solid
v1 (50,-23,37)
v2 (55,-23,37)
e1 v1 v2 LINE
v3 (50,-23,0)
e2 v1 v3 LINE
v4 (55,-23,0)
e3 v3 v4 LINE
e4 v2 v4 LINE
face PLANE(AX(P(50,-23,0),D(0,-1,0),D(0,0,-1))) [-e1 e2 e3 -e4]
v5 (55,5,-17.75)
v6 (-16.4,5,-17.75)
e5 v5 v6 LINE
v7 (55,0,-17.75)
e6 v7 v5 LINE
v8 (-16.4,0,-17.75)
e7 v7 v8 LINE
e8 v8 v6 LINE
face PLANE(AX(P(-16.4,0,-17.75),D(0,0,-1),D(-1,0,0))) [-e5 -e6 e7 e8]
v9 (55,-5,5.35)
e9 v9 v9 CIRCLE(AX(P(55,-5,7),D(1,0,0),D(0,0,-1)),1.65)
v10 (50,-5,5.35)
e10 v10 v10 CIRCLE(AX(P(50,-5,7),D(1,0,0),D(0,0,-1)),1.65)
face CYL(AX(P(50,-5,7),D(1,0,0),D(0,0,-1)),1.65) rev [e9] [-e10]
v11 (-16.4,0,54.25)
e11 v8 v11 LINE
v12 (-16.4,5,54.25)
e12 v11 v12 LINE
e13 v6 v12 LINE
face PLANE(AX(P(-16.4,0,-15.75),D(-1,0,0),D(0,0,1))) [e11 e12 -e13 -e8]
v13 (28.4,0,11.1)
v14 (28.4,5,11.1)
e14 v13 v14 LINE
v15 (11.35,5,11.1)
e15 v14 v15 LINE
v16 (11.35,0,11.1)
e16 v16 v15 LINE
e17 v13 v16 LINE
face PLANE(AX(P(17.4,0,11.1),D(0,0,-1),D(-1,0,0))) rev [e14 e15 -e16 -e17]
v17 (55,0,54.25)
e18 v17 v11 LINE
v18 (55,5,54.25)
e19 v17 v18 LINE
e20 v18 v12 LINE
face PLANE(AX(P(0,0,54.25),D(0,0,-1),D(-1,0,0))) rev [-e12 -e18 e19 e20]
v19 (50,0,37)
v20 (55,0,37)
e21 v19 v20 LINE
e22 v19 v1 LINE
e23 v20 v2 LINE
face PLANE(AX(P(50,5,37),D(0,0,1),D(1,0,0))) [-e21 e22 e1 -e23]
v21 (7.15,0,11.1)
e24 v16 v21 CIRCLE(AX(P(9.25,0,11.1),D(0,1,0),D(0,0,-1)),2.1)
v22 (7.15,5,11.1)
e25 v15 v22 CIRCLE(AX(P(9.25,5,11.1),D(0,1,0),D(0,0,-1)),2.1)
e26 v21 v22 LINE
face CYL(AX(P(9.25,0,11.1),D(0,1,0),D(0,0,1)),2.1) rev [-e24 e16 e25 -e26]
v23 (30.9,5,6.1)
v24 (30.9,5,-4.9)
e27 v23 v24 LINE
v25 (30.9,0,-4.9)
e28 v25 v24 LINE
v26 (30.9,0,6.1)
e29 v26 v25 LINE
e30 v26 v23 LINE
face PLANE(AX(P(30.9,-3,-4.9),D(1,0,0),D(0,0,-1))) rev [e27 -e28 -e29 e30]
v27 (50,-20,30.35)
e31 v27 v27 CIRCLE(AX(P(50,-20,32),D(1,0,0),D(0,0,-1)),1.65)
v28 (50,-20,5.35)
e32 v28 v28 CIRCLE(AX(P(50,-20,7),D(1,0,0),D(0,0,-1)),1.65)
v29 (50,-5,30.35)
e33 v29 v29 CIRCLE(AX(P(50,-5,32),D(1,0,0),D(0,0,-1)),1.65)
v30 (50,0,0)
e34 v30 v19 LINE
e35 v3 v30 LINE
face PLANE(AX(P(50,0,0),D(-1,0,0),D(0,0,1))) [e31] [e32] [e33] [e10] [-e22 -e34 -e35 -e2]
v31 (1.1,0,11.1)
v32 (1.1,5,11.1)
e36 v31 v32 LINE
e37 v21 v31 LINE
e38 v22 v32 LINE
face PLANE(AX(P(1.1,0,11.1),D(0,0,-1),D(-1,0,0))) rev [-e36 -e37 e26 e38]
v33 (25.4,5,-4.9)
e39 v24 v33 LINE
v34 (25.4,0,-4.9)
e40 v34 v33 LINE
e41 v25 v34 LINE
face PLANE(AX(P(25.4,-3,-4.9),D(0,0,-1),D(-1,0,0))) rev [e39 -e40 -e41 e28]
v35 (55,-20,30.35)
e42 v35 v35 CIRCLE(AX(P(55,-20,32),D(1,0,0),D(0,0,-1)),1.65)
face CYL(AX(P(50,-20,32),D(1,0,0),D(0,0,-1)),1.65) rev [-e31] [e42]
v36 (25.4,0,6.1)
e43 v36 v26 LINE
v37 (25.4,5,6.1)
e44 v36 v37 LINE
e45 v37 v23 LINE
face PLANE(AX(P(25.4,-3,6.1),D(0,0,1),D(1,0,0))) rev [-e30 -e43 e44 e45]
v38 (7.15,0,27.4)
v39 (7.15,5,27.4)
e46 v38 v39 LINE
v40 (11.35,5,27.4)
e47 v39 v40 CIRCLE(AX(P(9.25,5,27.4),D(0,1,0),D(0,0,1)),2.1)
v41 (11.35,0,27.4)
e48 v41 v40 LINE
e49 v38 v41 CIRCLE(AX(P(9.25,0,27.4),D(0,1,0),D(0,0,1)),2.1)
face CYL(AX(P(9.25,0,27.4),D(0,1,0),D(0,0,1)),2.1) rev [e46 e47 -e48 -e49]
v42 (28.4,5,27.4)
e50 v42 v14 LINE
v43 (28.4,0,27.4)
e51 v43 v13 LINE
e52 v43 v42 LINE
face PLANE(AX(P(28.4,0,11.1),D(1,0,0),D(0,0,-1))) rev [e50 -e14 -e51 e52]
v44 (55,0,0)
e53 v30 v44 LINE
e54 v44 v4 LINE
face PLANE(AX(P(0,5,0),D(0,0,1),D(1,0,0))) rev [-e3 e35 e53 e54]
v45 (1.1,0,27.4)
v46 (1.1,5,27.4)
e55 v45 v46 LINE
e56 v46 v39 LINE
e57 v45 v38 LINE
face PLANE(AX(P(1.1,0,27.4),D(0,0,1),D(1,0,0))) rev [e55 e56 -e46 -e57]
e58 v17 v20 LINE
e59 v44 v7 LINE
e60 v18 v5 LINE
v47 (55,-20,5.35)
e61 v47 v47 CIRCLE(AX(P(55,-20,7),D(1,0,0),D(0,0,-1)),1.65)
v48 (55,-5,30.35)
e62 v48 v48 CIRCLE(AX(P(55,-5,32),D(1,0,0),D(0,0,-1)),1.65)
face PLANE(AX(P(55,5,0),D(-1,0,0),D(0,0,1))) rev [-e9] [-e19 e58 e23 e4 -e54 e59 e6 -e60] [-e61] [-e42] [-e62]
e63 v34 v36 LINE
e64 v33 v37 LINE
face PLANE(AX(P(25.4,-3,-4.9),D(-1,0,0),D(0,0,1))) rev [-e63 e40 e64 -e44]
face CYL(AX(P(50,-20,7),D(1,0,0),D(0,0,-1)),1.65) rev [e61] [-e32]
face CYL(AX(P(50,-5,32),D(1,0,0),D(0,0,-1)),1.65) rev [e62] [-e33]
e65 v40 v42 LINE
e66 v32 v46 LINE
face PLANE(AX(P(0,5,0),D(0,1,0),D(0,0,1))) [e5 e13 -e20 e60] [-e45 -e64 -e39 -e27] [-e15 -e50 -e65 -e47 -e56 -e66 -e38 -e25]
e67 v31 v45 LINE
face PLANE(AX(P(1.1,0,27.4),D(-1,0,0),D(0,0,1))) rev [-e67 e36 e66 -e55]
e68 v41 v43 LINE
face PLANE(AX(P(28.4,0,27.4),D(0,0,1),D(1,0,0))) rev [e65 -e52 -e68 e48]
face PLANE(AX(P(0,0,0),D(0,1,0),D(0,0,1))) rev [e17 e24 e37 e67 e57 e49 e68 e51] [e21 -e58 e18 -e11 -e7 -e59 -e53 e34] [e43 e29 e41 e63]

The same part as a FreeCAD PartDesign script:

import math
import FreeCAD as App
import Part
import Sketcher
from FreeCAD import Vector
Q = App.Units.Quantity


def add_polygon(sketch, points):
    """Adds a closed chain of lines whose ends are joined by coincident constraints."""
    first, n = sketch.GeometryCount, len(points)
    for a, b in zip(points, points[1:] + points[:1]):
        sketch.addGeometry(Part.LineSegment(App.Vector(*a, 0), App.Vector(*b, 0)), False)
    for i in range(n):
        sketch.addConstraint(Sketcher.Constraint("Coincident", first + i, 2, first + (i + 1) % n, 1))

doc = App.newDocument("Part")
body = doc.addObject("PartDesign::Body", "Body")

# Sketch on XZ plane
sketch1 = doc.addObject("Sketcher::SketchObject", "Sketch")
body.addObject(sketch1)
sketch1.AttachmentSupport = (doc.XZ_Plane, [""])
sketch1.MapMode = "FlatFace"
add_polygon(sketch1, [(0, 0), (0, 70), (55, 70), (55, 0)])  # lines 0-3
sketch1.addConstraint([
    Sketcher.Constraint("Vertical", 0),
    Sketcher.Constraint("Horizontal", 1),
    Sketcher.Constraint("Vertical", 2),
    Sketcher.Constraint("Horizontal", 3),
    Sketcher.Constraint("Coincident", 3, 2, -1, 1),
    Sketcher.Constraint("DistanceX", 1, 1, 1, 2, Q("55 mm")),
    Sketcher.Constraint("DistanceY", 0, 1, 0, 2, Q("70 mm")),
])
pad1 = doc.addObject("PartDesign::Pad", "Pad")
body.addObject(pad1)
pad1.Profile = sketch1
pad1.Length = 5
pad1.Reversed = True

# Sketch on YZ plane
sketch2 = doc.addObject("Sketcher::SketchObject", "Sketch001")
body.addObject(sketch2)
sketch2.AttachmentSupport = (doc.YZ_Plane, [""])
sketch2.MapMode = "FlatFace"
sketch2.AttachmentOffset = App.Placement(Vector(0, 0, 55), App.Rotation())
add_polygon(sketch2, [(5, 37), (-23, 37), (-23, 0), (5, 0)])  # lines 0-3
sketch2.addConstraint([
    Sketcher.Constraint("Horizontal", 0),
    Sketcher.Constraint("Vertical", 1),
    Sketcher.Constraint("Horizontal", 2),
    Sketcher.Constraint("Vertical", 3),
    Sketcher.Constraint("PointOnObject", 1, 2, -1),
    Sketcher.Constraint("DistanceX", 0, 2, 0, 1, Q("28 mm")),
    Sketcher.Constraint("DistanceY", 1, 2, 1, 1, Q("37 mm")),
    Sketcher.Constraint("DistanceX", 0, 2, -1, 1, Q("23 mm")),
])
pad2 = doc.addObject("PartDesign::Pad", "Pad001")
body.addObject(pad2)
pad2.Profile = sketch2
pad2.Length = 5
pad2.Reversed = True

# Sketch on YZ plane
sketch3 = doc.addObject("Sketcher::SketchObject", "Sketch002")
body.addObject(sketch3)
sketch3.AttachmentSupport = (doc.YZ_Plane, [""])
sketch3.MapMode = "FlatFace"
sketch3.AttachmentOffset = App.Placement(Vector(0, 0, 55), App.Rotation())
sketch3.addGeometry([
    Part.Circle(Vector(-5, 7, 0), Vector(0, 0, 1), 1.6),
    Part.Circle(Vector(-5, 32, 0), Vector(0, 0, 1), 1.6),
    Part.Circle(Vector(-20, 32, 0), Vector(0, 0, 1), 1.6),
    Part.Circle(Vector(-20, 7, 0), Vector(0, 0, 1), 1.6),
], False)
sketch3.addConstraint([
    Sketcher.Constraint("Equal", 0, 1),
    Sketcher.Constraint("Equal", 1, 2),
    Sketcher.Constraint("Equal", 2, 3),
    Sketcher.Constraint("Horizontal", 1, 3, 2, 3),
    Sketcher.Constraint("Horizontal", 0, 3, 3, 3),
    Sketcher.Constraint("Vertical", 0, 3, 1, 3),
    Sketcher.Constraint("Vertical", 2, 3, 3, 3),
    Sketcher.Constraint("Diameter", 0, Q("3.3 mm")),
    Sketcher.Constraint("DistanceX", 0, 3, -1, 1, Q("5 mm")),
    Sketcher.Constraint("DistanceY", -1, 1, 0, 3, Q("7 mm")),
    Sketcher.Constraint("DistanceY", -1, 1, 1, 3, Q("32 mm")),
    Sketcher.Constraint("DistanceX", 2, 3, -1, 1, Q("20 mm")),
])
pocket1 = doc.addObject("PartDesign::Pocket", "Pocket")
body.addObject(pocket1)
pocket1.Profile = sketch3
pocket1.Length = 5

# Sketch on XZ plane
sketch4 = doc.addObject("Sketcher::SketchObject", "Sketch003")
body.addObject(sketch4)
sketch4.AttachmentSupport = (doc.XZ_Plane, [""])
sketch4.MapMode = "FlatFace"
sketch4.AttachmentOffset = App.Placement(Vector(0, 0, -5), App.Rotation())
add_polygon(sketch4, [(0, -16), (0, 0), (55, 0), (55, -16)])  # lines 0-3
sketch4.addConstraint([
    Sketcher.Constraint("Vertical", 0),
    Sketcher.Constraint("Horizontal", 1),
    Sketcher.Constraint("Vertical", 2),
    Sketcher.Constraint("Horizontal", 3),
    Sketcher.Constraint("Coincident", 0, 2, -1, 1),
    Sketcher.Constraint("DistanceX", 1, 1, 1, 2, Q("55 mm")),
    Sketcher.Constraint("DistanceY", 0, 1, 0, 2, Q("15.75 mm")),
])
pad3 = doc.addObject("PartDesign::Pad", "Pad002")
body.addObject(pad3)
pad3.Profile = sketch4
pad3.Length = 5

# Sketch on XZ plane
sketch5 = doc.addObject("Sketcher::SketchObject", "Sketch004")
body.addObject(sketch5)
sketch5.AttachmentSupport = (doc.XZ_Plane, [""])
sketch5.MapMode = "FlatFace"
sketch5.AttachmentOffset = App.Placement(Vector(0, 0, -5), App.Rotation())
add_polygon(sketch5, [(0, 54), (0, 70), (55, 70), (55, 54)])  # lines 0-3
sketch5.addConstraint([
    Sketcher.Constraint("Vertical", 0),
    Sketcher.Constraint("Horizontal", 1),
    Sketcher.Constraint("Vertical", 2),
    Sketcher.Constraint("Horizontal", 3),
    Sketcher.Constraint("PointOnObject", 0, 2, -2),
    Sketcher.Constraint("DistanceX", 1, 1, 1, 2, Q("55 mm")),
    Sketcher.Constraint("DistanceY", -1, 1, 0, 2, Q("70 mm")),
    Sketcher.Constraint("DistanceY", 0, 1, 0, 2, Q("15.75 mm")),
])
pocket2 = doc.addObject("PartDesign::Pocket", "Pocket001")
body.addObject(pocket2)
pocket2.Profile = sketch5
pocket2.Length = 5
pocket2.Reversed = True

# Sketch on XZ plane
sketch6 = doc.addObject("Sketcher::SketchObject", "Sketch005")
body.addObject(sketch6)
sketch6.AttachmentSupport = (doc.XZ_Plane, [""])
sketch6.MapMode = "FlatFace"
sketch6.AttachmentOffset = App.Placement(Vector(0, 0, -5), App.Rotation())
sketch6.addGeometry([
    Part.LineSegment(Vector(28.4, 27.4, 0), Vector(28.4, 11.1, 0)),  # 0
    Part.LineSegment(Vector(28.4, 11.1, 0), Vector(11.3, 11.1, 0)),  # 1
    Part.ArcOfCircle(Part.Circle(Vector(9.2, 11.1, 0), Vector(0, 0, 1), 2.1), math.radians(180), math.radians(360)),  # 2
    Part.LineSegment(Vector(7.2, 11.1, 0), Vector(1.1, 11.1, 0)),  # 3
    Part.LineSegment(Vector(1.1, 11.1, 0), Vector(1.1, 27.4, 0)),  # 4
    Part.LineSegment(Vector(1.1, 27.4, 0), Vector(7.2, 27.4, 0)),  # 5
    Part.ArcOfCircle(Part.Circle(Vector(9.2, 27.4, 0), Vector(0, 0, 1), 2.1), math.radians(0), math.radians(180)),  # 6
    Part.LineSegment(Vector(11.3, 27.4, 0), Vector(28.4, 27.4, 0)),  # 7
], False)
sketch6.addConstraint([
    Sketcher.Constraint("Coincident", 0, 2, 1, 1),
    Sketcher.Constraint("Coincident", 1, 2, 2, 2),
    Sketcher.Constraint("Coincident", 2, 1, 3, 1),
    Sketcher.Constraint("Coincident", 3, 2, 4, 1),
    Sketcher.Constraint("Coincident", 4, 2, 5, 1),
    Sketcher.Constraint("Coincident", 5, 2, 6, 2),
    Sketcher.Constraint("Coincident", 6, 1, 7, 1),
    Sketcher.Constraint("Coincident", 7, 2, 0, 1),
    Sketcher.Constraint("Vertical", 0),
    Sketcher.Constraint("Horizontal", 1),
    Sketcher.Constraint("Horizontal", 3),
    Sketcher.Constraint("Vertical", 4),
    Sketcher.Constraint("Horizontal", 5),
    Sketcher.Constraint("Horizontal", 7),
    Sketcher.Constraint("Equal", 2, 6),
    Sketcher.Constraint("Horizontal", 2, 3, 0, 2),
    Sketcher.Constraint("Horizontal", 1, 2, 2, 1),
    Sketcher.Constraint("Horizontal", 6, 3, 4, 2),
    Sketcher.Constraint("Horizontal", 5, 2, 6, 1),
    Sketcher.Constraint("Vertical", 2, 3, 6, 3),
    Sketcher.Constraint("Radius", 2, Q("2.1 mm")),
    Sketcher.Constraint("DistanceY", 0, 2, 0, 1, Q("16.3 mm")),
    Sketcher.Constraint("DistanceX", 1, 2, 1, 1, Q("17.05 mm")),
    Sketcher.Constraint("DistanceX", 3, 2, 3, 1, Q("6.05 mm")),
    Sketcher.Constraint("DistanceY", -1, 1, 2, 3, Q("11.1 mm")),
    Sketcher.Constraint("DistanceX", -1, 1, 0, 2, Q("28.4 mm")),
])
pocket3 = doc.addObject("PartDesign::Pocket", "Pocket002")
body.addObject(pocket3)
pocket3.Profile = sketch6
pocket3.Length = 5
pocket3.Reversed = True

# Sketch on XZ plane
sketch7 = doc.addObject("Sketcher::SketchObject", "Sketch006")
body.addObject(sketch7)
sketch7.AttachmentSupport = (doc.XZ_Plane, [""])
sketch7.MapMode = "FlatFace"
sketch7.AttachmentOffset = App.Placement(Vector(0, 0, -5), App.Rotation())
add_polygon(sketch7, [(25, -5), (25, 6), (31, 6), (31, -5)])  # lines 0-3
sketch7.addConstraint([
    Sketcher.Constraint("Vertical", 0),
    Sketcher.Constraint("Horizontal", 1),
    Sketcher.Constraint("Vertical", 2),
    Sketcher.Constraint("Horizontal", 3),
    Sketcher.Constraint("DistanceY", 0, 1, 0, 2, Q("11 mm")),
    Sketcher.Constraint("DistanceX", 1, 1, 1, 2, Q("5.5 mm")),
    Sketcher.Constraint("DistanceX", -1, 1, 0, 2, Q("25.4 mm")),
    Sketcher.Constraint("DistanceY", -1, 1, 0, 2, Q("6.1 mm")),
])
pocket4 = doc.addObject("PartDesign::Pocket", "Pocket003")
body.addObject(pocket4)
pocket4.Profile = sketch7
pocket4.Length = 8
pocket4.Reversed = True

# Sketch on XZ plane
sketch8 = doc.addObject("Sketcher::SketchObject", "Sketch007")
body.addObject(sketch8)
sketch8.AttachmentSupport = (doc.XZ_Plane, [""])
sketch8.MapMode = "FlatFace"
sketch8.AttachmentOffset = App.Placement(Vector(0, 0, -5), App.Rotation())
add_polygon(sketch8, [(-16, -16), (-16, 54), (0, 54), (0, -16)])  # lines 0-3
sketch8.addConstraint([
    Sketcher.Constraint("Vertical", 0),
    Sketcher.Constraint("Horizontal", 1),
    Sketcher.Constraint("Vertical", 2),
    Sketcher.Constraint("Horizontal", 3),
    Sketcher.Constraint("PointOnObject", 1, 2, -2),
    Sketcher.Constraint("DistanceY", 0, 1, 0, 2, Q("70 mm")),
    Sketcher.Constraint("DistanceX", 1, 1, 1, 2, Q("16.4 mm")),
    Sketcher.Constraint("DistanceY", -1, 1, 0, 2, Q("54.25 mm")),
])
pad4 = doc.addObject("PartDesign::Pad", "Pad003")
body.addObject(pad4)
pad4.Profile = sketch8
pad4.Length = 5

# Sketch on XZ plane
sketch9 = doc.addObject("Sketcher::SketchObject", "Sketch008")
body.addObject(sketch9)
sketch9.AttachmentSupport = (doc.XZ_Plane, [""])
sketch9.MapMode = "FlatFace"
sketch9.AttachmentOffset = App.Placement(Vector(0, 0, -5), App.Rotation())
add_polygon(sketch9, [(-16.4, -17.8), (-16.4, -15.8), (55, -15.8), (55, -17.8)])  # lines 0-3
sketch9.addConstraint([
    Sketcher.Constraint("Vertical", 0),
    Sketcher.Constraint("Horizontal", 1),
    Sketcher.Constraint("Vertical", 2),
    Sketcher.Constraint("Horizontal", 3),
    Sketcher.Constraint("DistanceY", 0, 1, 0, 2, Q("2 mm")),
    Sketcher.Constraint("DistanceX", 1, 1, 1, 2, Q("71.4 mm")),
    Sketcher.Constraint("DistanceX", -1, 1, 1, 2, Q("55 mm")),
    Sketcher.Constraint("DistanceY", 0, 2, -1, 1, Q("15.75 mm")),
])
pad5 = doc.addObject("PartDesign::Pad", "Pad004")
body.addObject(pad5)
pad5.Profile = sketch9
pad5.Length = 5

doc.recompute()
